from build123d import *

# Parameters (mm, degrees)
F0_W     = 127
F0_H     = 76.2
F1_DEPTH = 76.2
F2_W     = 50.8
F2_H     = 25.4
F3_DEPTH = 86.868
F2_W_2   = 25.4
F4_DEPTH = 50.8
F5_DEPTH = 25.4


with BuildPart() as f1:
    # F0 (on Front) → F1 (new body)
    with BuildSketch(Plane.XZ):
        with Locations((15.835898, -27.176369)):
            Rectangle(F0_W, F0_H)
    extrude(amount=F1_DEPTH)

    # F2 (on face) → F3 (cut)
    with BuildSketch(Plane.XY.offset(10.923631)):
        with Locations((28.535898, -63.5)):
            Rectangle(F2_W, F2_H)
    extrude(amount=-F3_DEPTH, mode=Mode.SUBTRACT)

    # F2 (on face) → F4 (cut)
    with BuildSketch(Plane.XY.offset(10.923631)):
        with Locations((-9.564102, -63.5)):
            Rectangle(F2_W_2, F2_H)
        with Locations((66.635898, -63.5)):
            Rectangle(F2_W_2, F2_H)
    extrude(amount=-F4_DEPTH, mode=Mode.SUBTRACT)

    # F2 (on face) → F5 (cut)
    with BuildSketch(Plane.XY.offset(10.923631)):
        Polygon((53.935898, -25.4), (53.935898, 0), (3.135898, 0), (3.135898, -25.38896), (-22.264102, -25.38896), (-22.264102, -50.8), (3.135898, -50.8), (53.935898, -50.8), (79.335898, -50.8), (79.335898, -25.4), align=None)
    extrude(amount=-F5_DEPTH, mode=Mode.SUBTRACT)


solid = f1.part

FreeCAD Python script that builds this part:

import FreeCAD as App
import Part
import Sketcher
Q = App.Units.Quantity


def add_polygon(sketch, points):
    """Adds a closed chain of lines whose ends are joined by coincident constraints."""
    first, n = sketch.GeometryCount, len(points)
    for a, b in zip(points, points[1:] + points[:1]):
        sketch.addGeometry(Part.LineSegment(App.Vector(*a, 0), App.Vector(*b, 0)), False)
    for i in range(n):
        sketch.addConstraint(Sketcher.Constraint("Coincident", first + i, 2, first + (i + 1) % n, 1))

doc = App.newDocument("Part")
params = doc.addObject("Spreadsheet::Sheet", "Params")
for row, (alias, value) in enumerate([
    ("sketch1_width", "5 in"),
    ("sketch1_height", "3 in"),
    ("pad1_length", "3 in"),
    ("sketch2_width", "2 in"),
    ("sketch2_height", "1 in"),
    ("pocket1_length", "3.42 in"),
    ("sketch3_width", "1 in"),
    ("pocket2_length", "2 in"),
    ("sketch4_width", "2 in"),
    ("sketch4_width2", "1 in"),
    ("pocket3_length", "1 in"),
], start=1):
    params.set(f"A{row}", alias)
    params.set(f"B{row}", "=" + value)
    params.setAlias(f"B{row}", alias)

body = doc.addObject("PartDesign::Body", "Body")

# Sketch on XZ plane
sketch1 = body.newObject("Sketcher::SketchObject", "Sketch")
sketch1.AttachmentSupport = (doc.getObject("XZ_Plane"), [""])
sketch1.MapMode = "FlatFace"
add_polygon(sketch1, [(-48, 11), (-48, -65), (79, -65), (79, 11)])  # lines 0-3
sketch1.addConstraint(Sketcher.Constraint("Vertical", 0))
sketch1.addConstraint(Sketcher.Constraint("Horizontal", 1))
sketch1.addConstraint(Sketcher.Constraint("Vertical", 2))
sketch1.addConstraint(Sketcher.Constraint("Horizontal", 3))
sketch1.addConstraint(Sketcher.Constraint("DistanceX", 1, 1, 1, 2, Q("5 in")))
sketch1.addConstraint(Sketcher.Constraint("DistanceY", 0, 2, 0, 1, Q("3 in")))
sketch1.addConstraint(Sketcher.Constraint("DistanceX", -1, 1, 1, 2, Q("79.335898 mm")))
sketch1.addConstraint(Sketcher.Constraint("DistanceY", 0, 2, -1, 1, Q("65.276369 mm")))
sketch1.setExpression("Constraints[8]", "Params.sketch1_width")
sketch1.setExpression("Constraints[9]", "Params.sketch1_height")
pad1 = body.newObject("PartDesign::Pad", "Pad")
pad1.Profile = sketch1
pad1.setExpression("Length", "Params.pad1_length")

# Sketch on XY plane
sketch2 = body.newObject("Sketcher::SketchObject", "Sketch001")
sketch2.AttachmentSupport = (doc.getObject("XY_Plane"), [""])
sketch2.MapMode = "FlatFace"
sketch2.AttachmentOffset = App.Placement(App.Vector(0, 0, 10.923631), App.Rotation())
add_polygon(sketch2, [(3, -51), (3, -76), (54, -76), (54, -51)])  # lines 0-3
sketch2.addConstraint(Sketcher.Constraint("Vertical", 0))
sketch2.addConstraint(Sketcher.Constraint("Horizontal", 1))
sketch2.addConstraint(Sketcher.Constraint("Vertical", 2))
sketch2.addConstraint(Sketcher.Constraint("Horizontal", 3))
sketch2.addConstraint(Sketcher.Constraint("DistanceX", 1, 1, 1, 2, Q("2 in")))
sketch2.addConstraint(Sketcher.Constraint("DistanceY", 0, 2, 0, 1, Q("1 in")))
sketch2.addConstraint(Sketcher.Constraint("DistanceY", 0, 2, -1, 1, Q("3 in")))
sketch2.addConstraint(Sketcher.Constraint("DistanceX", -1, 1, 0, 2, Q("3.135898 mm")))
sketch2.setExpression("Constraints[8]", "Params.sketch2_width")
sketch2.setExpression("Constraints[9]", "Params.sketch2_height")
pocket1 = body.newObject("PartDesign::Pocket", "Pocket")
pocket1.Profile = sketch2
pocket1.setExpression("Length", "Params.pocket1_length")

# Sketch on XY plane
sketch3 = body.newObject("Sketcher::SketchObject", "Sketch002")
sketch3.AttachmentSupport = (doc.getObject("XY_Plane"), [""])
sketch3.MapMode = "FlatFace"
sketch3.AttachmentOffset = App.Placement(App.Vector(0, 0, 10.923631), App.Rotation())
add_polygon(sketch3, [(-22, -51), (-22, -76), (3, -76), (3, -51)])  # lines 0-3
add_polygon(sketch3, [(54, -51), (54, -76), (79, -76), (79, -51)])  # lines 4-7
sketch3.addConstraint(Sketcher.Constraint("Vertical", 0))
sketch3.addConstraint(Sketcher.Constraint("Horizontal", 1))
sketch3.addConstraint(Sketcher.Constraint("Vertical", 2))
sketch3.addConstraint(Sketcher.Constraint("Horizontal", 3))
sketch3.addConstraint(Sketcher.Constraint("Vertical", 4))
sketch3.addConstraint(Sketcher.Constraint("Horizontal", 5))
sketch3.addConstraint(Sketcher.Constraint("Vertical", 6))
sketch3.addConstraint(Sketcher.Constraint("Horizontal", 7))
sketch3.addConstraint(Sketcher.Constraint("Horizontal", 1, 2, 4, 2))
sketch3.addConstraint(Sketcher.Constraint("Horizontal", 3, 2, 6, 2))
sketch3.addConstraint(Sketcher.Constraint("Equal", 3, 5))
sketch3.addConstraint(Sketcher.Constraint("Equal", 7, 0))
sketch3.addConstraint(Sketcher.Constraint("DistanceX", 1, 1, 1, 2, Q("1 in")))
sketch3.addConstraint(Sketcher.Constraint("DistanceY", 0, 2, -1, 1, Q("3 in")))
sketch3.addConstraint(Sketcher.Constraint("DistanceX", 1, 2, 4, 2, Q("2 in")))
sketch3.addConstraint(Sketcher.Constraint("DistanceX", -1, 1, 1, 2, Q("3.135898 mm")))
sketch3.setExpression("Constraints[20]", "Params.sketch3_width")
pocket2 = body.newObject("PartDesign::Pocket", "Pocket001")
pocket2.Profile = sketch3
pocket2.setExpression("Length", "Params.pocket2_length")

# Sketch on XY plane
sketch4 = body.newObject("Sketcher::SketchObject", "Sketch003")
sketch4.AttachmentSupport = (doc.getObject("XY_Plane"), [""])
sketch4.MapMode = "FlatFace"
sketch4.AttachmentOffset = App.Placement(App.Vector(0, 0, 10.923631), App.Rotation())
add_polygon(sketch4, [(54, -25), (54, 0), (3, 0), (3, -25), (-22, -25), (-22, -51), (79, -51), (79, -25)])  # lines 0-7
sketch4.addConstraint(Sketcher.Constraint("Vertical", 0))
sketch4.addConstraint(Sketcher.Constraint("Horizontal", 1))
sketch4.addConstraint(Sketcher.Constraint("Vertical", 2))
sketch4.addConstraint(Sketcher.Constraint("Horizontal", 3))
sketch4.addConstraint(Sketcher.Constraint("Vertical", 4))
sketch4.addConstraint(Sketcher.Constraint("Horizontal", 5))
sketch4.addConstraint(Sketcher.Constraint("Vertical", 6))
sketch4.addConstraint(Sketcher.Constraint("Horizontal", 7))
sketch4.addConstraint(Sketcher.Constraint("PointOnObject", 0, 2, -1))
sketch4.addConstraint(Sketcher.Constraint("Equal", 3, 7))
sketch4.addConstraint(Sketcher.Constraint("Equal", 7, 0))
sketch4.addConstraint(Sketcher.Constraint("Equal", 0, 6))
sketch4.addConstraint(Sketcher.Constraint("DistanceX", 1, 2, 1, 1, Q("2 in")))
sketch4.addConstraint(Sketcher.Constraint("DistanceX", 3, 2, 3, 1, Q("1 in")))
sketch4.addConstraint(Sketcher.Constraint("DistanceY", 2, 2, 2, 1, Q("25.38896 mm")))
sketch4.addConstraint(Sketcher.Constraint("DistanceX", -1, 1, 0, 2, Q("53.935898 mm")))
sketch4.setExpression("Constraints[20]", "Params.sketch4_width")
sketch4.setExpression("Constraints[21]", "Params.sketch4_width2")
pocket3 = body.newObject("PartDesign::Pocket", "Pocket002")
pocket3.Profile = sketch4
pocket3.setExpression("Length", "Params.pocket3_length")

doc.recompute()
